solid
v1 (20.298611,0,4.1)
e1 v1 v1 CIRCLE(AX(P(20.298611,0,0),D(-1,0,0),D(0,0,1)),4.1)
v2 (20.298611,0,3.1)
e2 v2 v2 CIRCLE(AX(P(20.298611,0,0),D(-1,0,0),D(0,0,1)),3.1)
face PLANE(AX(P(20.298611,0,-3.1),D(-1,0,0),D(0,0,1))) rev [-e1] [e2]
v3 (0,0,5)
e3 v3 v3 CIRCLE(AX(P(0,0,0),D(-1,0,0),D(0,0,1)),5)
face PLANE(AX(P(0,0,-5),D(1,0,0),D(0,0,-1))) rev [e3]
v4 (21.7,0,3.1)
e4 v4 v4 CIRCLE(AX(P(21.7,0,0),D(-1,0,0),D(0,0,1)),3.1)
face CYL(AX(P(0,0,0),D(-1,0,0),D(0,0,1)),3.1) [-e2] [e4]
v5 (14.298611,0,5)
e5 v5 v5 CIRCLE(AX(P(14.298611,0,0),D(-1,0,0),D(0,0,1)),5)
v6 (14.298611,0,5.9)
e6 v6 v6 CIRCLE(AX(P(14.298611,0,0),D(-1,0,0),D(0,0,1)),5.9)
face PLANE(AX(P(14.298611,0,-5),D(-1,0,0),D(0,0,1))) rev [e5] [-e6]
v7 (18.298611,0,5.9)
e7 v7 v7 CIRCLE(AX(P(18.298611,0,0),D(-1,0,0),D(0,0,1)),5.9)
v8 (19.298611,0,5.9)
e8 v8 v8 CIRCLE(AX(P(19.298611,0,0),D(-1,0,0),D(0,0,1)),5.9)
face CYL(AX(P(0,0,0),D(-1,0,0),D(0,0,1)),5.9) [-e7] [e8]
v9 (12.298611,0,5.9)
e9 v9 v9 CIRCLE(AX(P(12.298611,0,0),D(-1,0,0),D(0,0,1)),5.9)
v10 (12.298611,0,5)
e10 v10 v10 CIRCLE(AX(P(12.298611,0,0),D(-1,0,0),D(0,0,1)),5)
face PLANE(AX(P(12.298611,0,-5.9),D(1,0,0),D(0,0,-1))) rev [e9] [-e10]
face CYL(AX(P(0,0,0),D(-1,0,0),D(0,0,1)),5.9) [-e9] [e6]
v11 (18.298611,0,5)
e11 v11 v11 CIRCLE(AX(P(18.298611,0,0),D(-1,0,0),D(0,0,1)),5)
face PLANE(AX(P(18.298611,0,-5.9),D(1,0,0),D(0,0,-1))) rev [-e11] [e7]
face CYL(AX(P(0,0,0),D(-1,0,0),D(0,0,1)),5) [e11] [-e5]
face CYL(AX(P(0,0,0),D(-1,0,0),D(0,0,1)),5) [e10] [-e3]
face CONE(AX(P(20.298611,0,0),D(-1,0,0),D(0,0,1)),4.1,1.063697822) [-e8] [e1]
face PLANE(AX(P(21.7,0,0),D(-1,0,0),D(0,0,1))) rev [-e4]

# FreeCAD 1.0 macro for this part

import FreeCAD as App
import Part
import Sketcher

V = App.Vector
Q = App.Units.Quantity

doc = App.newDocument("Part")
body = doc.addObject("PartDesign::Body", "Body")

# Sketch on XZ plane
sketch1 = doc.addObject("Sketcher::SketchObject", "Sketch")
body.addObject(sketch1)
sketch1.AttachmentSupport = (doc.XZ_Plane, [""])
sketch1.MapMode = "FlatFace"
sketch1.addGeometry(Part.LineSegment(V(21.7, 0, 0), V(21.7, -3.1, 0)), False)
sketch1.addGeometry(Part.LineSegment(V(21.7, -3.1, 0), V(20.3, -3.1, 0)), False)
sketch1.addGeometry(Part.LineSegment(V(20.3, -3.1, 0), V(20.3, -4.1, 0)), False)
sketch1.addGeometry(Part.LineSegment(V(20.3, -4.1, 0), V(19.3, -5.9, 0)), False)
sketch1.addGeometry(Part.LineSegment(V(19.3, -5.9, 0), V(18.3, -5.9, 0)), False)
sketch1.addGeometry(Part.LineSegment(V(18.3, -5.9, 0), V(18.3, -5, 0)), False)
sketch1.addGeometry(Part.LineSegment(V(18.3, -5, 0), V(14.3, -5, 0)), False)
sketch1.addGeometry(Part.LineSegment(V(14.3, -5, 0), V(14.3, -5.9, 0)), False)
sketch1.addGeometry(Part.LineSegment(V(14.3, -5.9, 0), V(12.3, -5.9, 0)), False)
sketch1.addGeometry(Part.LineSegment(V(12.3, -5.9, 0), V(12.3, -5, 0)), False)
sketch1.addGeometry(Part.LineSegment(V(12.3, -5, 0), V(0, -5, 0)), False)
sketch1.addGeometry(Part.LineSegment(V(0, -5, 0), V(0, 0, 0)), False)
sketch1.addGeometry(Part.LineSegment(V(0, 0, 0), V(21.7, 0, 0)), False)
sketch1.addConstraint(Sketcher.Constraint("Coincident", 0, 2, 1, 1))
sketch1.addConstraint(Sketcher.Constraint("Coincident", 1, 2, 2, 1))
sketch1.addConstraint(Sketcher.Constraint("Coincident", 2, 2, 3, 1))
sketch1.addConstraint(Sketcher.Constraint("Coincident", 3, 2, 4, 1))
sketch1.addConstraint(Sketcher.Constraint("Coincident", 4, 2, 5, 1))
sketch1.addConstraint(Sketcher.Constraint("Coincident", 5, 2, 6, 1))
sketch1.addConstraint(Sketcher.Constraint("Coincident", 6, 2, 7, 1))
sketch1.addConstraint(Sketcher.Constraint("Coincident", 7, 2, 8, 1))
sketch1.addConstraint(Sketcher.Constraint("Coincident", 8, 2, 9, 1))
sketch1.addConstraint(Sketcher.Constraint("Coincident", 9, 2, 10, 1))
sketch1.addConstraint(Sketcher.Constraint("Coincident", 10, 2, 11, 1))
sketch1.addConstraint(Sketcher.Constraint("Coincident", 11, 2, 12, 1))
sketch1.addConstraint(Sketcher.Constraint("Coincident", 12, 2, 0, 1))
sketch1.addConstraint(Sketcher.Constraint("Vertical", 0))
sketch1.addConstraint(Sketcher.Constraint("Horizontal", 1))
sketch1.addConstraint(Sketcher.Constraint("Vertical", 2))
sketch1.addConstraint(Sketcher.Constraint("Horizontal", 4))
sketch1.addConstraint(Sketcher.Constraint("Vertical", 5))
sketch1.addConstraint(Sketcher.Constraint("Horizontal", 6))
sketch1.addConstraint(Sketcher.Constraint("Vertical", 7))
sketch1.addConstraint(Sketcher.Constraint("Horizontal", 8))
sketch1.addConstraint(Sketcher.Constraint("Vertical", 9))
sketch1.addConstraint(Sketcher.Constraint("Horizontal", 10))
sketch1.addConstraint(Sketcher.Constraint("Vertical", 11))
sketch1.addConstraint(Sketcher.Constraint("Horizontal", 12))
sketch1.addConstraint(Sketcher.Constraint("Coincident", 11, 2, -1, 1))
sketch1.addConstraint(Sketcher.Constraint("Horizontal", 4, 2, 7, 2))
sketch1.addConstraint(Sketcher.Constraint("Horizontal", 6, 2, 9, 2))
sketch1.addConstraint(Sketcher.Constraint("Equal", 4, 2))
sketch1.addConstraint(Sketcher.Constraint("DistanceX", 4, 2, 4, 1, Q("1 mm")))
sketch1.addConstraint(Sketcher.Constraint("DistanceX", 6, 2, 6, 1, Q("4 mm")))
sketch1.addConstraint(Sketcher.Constraint("DistanceX", 8, 2, 8, 1, Q("2 mm")))
sketch1.addConstraint(Sketcher.Constraint("DistanceY", 11, 1, 11, 2, Q("5 mm")))
sketch1.addConstraint(Sketcher.Constraint("DistanceX", 12, 1, 12, 2, Q("21.7 mm")))
sketch1.addConstraint(Sketcher.Constraint("DistanceY", 0, 2, 0, 1, Q("3.1 mm")))
sketch1.addConstraint(Sketcher.Constraint("DistanceY", 5, 1, 5, 2, Q("0.9 mm")))
sketch1.addConstraint(Sketcher.Constraint("DistanceX", 3, 2, 2, 2, Q("1 mm")))
sketch1.addConstraint(Sketcher.Constraint("DistanceX", 1, 2, 1, 1, Q("1.401389 mm")))
revolution = doc.addObject("PartDesign::Revolution", "Revolution")
body.addObject(revolution)
revolution.Profile = sketch1
revolution.ReferenceAxis = (sketch1, ["H_Axis"])
revolution.Angle = 360

doc.recompute()
